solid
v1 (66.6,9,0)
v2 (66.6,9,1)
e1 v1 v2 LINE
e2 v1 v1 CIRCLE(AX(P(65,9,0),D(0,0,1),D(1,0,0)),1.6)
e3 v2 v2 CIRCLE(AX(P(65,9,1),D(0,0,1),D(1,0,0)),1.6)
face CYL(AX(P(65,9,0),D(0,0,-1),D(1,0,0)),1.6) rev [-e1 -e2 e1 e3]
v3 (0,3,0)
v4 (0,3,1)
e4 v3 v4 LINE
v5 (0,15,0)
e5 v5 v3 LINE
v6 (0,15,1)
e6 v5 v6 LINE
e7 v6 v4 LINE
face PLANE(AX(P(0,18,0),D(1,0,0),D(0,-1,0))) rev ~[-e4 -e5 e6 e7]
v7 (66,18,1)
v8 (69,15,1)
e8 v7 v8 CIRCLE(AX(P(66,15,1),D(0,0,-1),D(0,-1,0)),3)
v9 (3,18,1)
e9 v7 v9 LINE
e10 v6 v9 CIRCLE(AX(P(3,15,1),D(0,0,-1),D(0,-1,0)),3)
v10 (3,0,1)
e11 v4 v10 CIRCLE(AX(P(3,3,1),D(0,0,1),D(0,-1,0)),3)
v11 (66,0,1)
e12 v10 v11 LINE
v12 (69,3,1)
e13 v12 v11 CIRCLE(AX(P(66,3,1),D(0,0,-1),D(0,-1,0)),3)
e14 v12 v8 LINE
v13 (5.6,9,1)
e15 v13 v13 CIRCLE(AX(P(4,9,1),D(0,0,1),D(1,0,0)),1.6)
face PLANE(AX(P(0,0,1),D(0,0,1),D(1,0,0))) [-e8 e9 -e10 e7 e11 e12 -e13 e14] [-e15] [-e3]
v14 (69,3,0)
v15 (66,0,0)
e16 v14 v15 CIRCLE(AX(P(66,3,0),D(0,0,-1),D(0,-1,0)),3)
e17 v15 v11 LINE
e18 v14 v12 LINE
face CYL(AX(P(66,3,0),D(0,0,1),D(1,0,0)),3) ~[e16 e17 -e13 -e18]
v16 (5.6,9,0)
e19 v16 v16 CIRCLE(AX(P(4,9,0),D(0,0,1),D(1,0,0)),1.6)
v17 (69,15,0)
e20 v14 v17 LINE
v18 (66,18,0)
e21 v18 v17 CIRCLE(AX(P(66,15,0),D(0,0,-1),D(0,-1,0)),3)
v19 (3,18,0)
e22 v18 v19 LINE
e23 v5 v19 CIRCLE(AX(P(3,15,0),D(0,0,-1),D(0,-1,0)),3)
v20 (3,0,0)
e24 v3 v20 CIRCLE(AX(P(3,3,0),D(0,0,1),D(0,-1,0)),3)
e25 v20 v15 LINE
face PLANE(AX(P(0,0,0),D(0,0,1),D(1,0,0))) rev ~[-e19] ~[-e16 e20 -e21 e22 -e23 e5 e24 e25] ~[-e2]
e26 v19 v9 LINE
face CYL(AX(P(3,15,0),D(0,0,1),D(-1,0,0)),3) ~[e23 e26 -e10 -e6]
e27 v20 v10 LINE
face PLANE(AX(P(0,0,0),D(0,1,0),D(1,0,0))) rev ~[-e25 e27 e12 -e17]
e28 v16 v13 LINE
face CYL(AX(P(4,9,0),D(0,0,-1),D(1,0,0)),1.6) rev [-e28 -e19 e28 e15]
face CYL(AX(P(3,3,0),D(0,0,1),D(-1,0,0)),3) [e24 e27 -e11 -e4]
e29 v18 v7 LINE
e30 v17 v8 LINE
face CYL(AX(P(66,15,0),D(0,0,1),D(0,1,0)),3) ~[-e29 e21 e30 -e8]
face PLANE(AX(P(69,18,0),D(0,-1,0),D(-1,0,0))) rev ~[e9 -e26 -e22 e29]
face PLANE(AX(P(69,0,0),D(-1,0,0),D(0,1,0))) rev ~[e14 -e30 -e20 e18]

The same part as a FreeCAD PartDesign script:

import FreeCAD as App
import Part
import Sketcher
from FreeCAD import Vector


def edges_at(feature, points):
    """Names of the edges that pass closest to the given points."""
    edges = feature.Shape.Edges
    near = lambda p: min(range(len(edges)), key=lambda i: edges[i].distToShape(Part.Vertex(*p))[0])
    return sorted({f"Edge{near(p) + 1}" for p in points})


def add_polygon(sketch, points):
    """Adds a closed chain of lines whose ends are joined by coincident constraints."""
    first, n = sketch.GeometryCount, len(points)
    for a, b in zip(points, points[1:] + points[:1]):
        sketch.addGeometry(Part.LineSegment(App.Vector(*a, 0), App.Vector(*b, 0)), False)
    for i in range(n):
        sketch.addConstraint(Sketcher.Constraint("Coincident", first + i, 2, first + (i + 1) % n, 1))

doc = App.newDocument("Part")
params = doc.addObject("Spreadsheet::Sheet", "Params")
for row, (alias, value) in enumerate([
    ("sketch1_diameter", "3.2 mm"),
    ("sketch1_width", "69 mm"),
    ("sketch1_height", "18 mm"),
    ("pad1_length", "1 mm"),
    ("fillet_radius", "3 mm"),
    ("fillet2_radius", "3 mm"),
    ("fillet3_radius", "3 mm"),
    ("fillet4_radius", "3 mm"),
], start=1):
    params.set(f"A{row}", alias)
    params.set(f"B{row}", "=" + value)
    params.setAlias(f"B{row}", alias)

body = doc.addObject("PartDesign::Body", "Body")

# Sketch on XY plane
sketch1 = doc.addObject("Sketcher::SketchObject", "Sketch")
body.addObject(sketch1)
sketch1.AttachmentSupport = (doc.XY_Plane, [""])
sketch1.MapMode = "FlatFace"
add_polygon(sketch1, [(0, 18), (0, 0), (69, 0), (69, 18)])  # lines 0-3
sketch1.addGeometry(Part.Circle(Vector(4, 9, 0), Vector(0, 0, 1), 1.6), False)  # 4
sketch1.addGeometry(Part.Circle(Vector(65, 9, 0), Vector(0, 0, 1), 1.6), False)  # 5
sketch1.addConstraint([
    Sketcher.Constraint("Vertical", 0),
    Sketcher.Constraint("Horizontal", 1),
    Sketcher.Constraint("Vertical", 2),
    Sketcher.Constraint("Horizontal", 3),
    Sketcher.Constraint("Coincident", 0, 2, -1, 1),
    Sketcher.Constraint("Equal", 4, 5),
    Sketcher.Constraint("Horizontal", 4, 3, 5, 3),
    Sketcher.Constraint("Diameter", 4, 3.2),
    Sketcher.Constraint("DistanceX", 1, 1, 1, 2, 69.0),
    Sketcher.Constraint("DistanceY", 0, 2, 0, 1, 18.0),
    Sketcher.Constraint("DistanceX", -1, 1, 4, 3, 4.0),
    Sketcher.Constraint("DistanceY", -1, 1, 4, 3, 9.0),
    Sketcher.Constraint("DistanceX", 5, 3, 1, 2, 4.0),
])
sketch1.setExpression("Constraints[11]", "Params.sketch1_diameter")
sketch1.setExpression("Constraints[12]", "Params.sketch1_width")
sketch1.setExpression("Constraints[13]", "Params.sketch1_height")
pad1 = doc.addObject("PartDesign::Pad", "Pad")
body.addObject(pad1)
pad1.Profile = sketch1
pad1.setExpression("Length", "Params.pad1_length")
doc.recompute()

fillet = doc.addObject("PartDesign::Fillet", "Fillet")
body.addObject(fillet)
fillet.Base = (pad1, edges_at(pad1, [(69, 18, 0.5)]))
fillet.setExpression("Radius", "Params.fillet_radius")
doc.recompute()

fillet2 = doc.addObject("PartDesign::Fillet", "Fillet001")
body.addObject(fillet2)
fillet2.Base = (fillet, edges_at(fillet, [(0, 18, 0.5)]))
fillet2.setExpression("Radius", "Params.fillet2_radius")
doc.recompute()

fillet3 = doc.addObject("PartDesign::Fillet", "Fillet002")
body.addObject(fillet3)
fillet3.Base = (fillet2, edges_at(fillet2, [(0, 0, 0.5)]))
fillet3.setExpression("Radius", "Params.fillet3_radius")
doc.recompute()

fillet4 = doc.addObject("PartDesign::Fillet", "Fillet003")
body.addObject(fillet4)
fillet4.Base = (fillet3, edges_at(fillet3, [(69, 0, 0.5)]))
fillet4.setExpression("Radius", "Params.fillet4_radius")

doc.recompute()
